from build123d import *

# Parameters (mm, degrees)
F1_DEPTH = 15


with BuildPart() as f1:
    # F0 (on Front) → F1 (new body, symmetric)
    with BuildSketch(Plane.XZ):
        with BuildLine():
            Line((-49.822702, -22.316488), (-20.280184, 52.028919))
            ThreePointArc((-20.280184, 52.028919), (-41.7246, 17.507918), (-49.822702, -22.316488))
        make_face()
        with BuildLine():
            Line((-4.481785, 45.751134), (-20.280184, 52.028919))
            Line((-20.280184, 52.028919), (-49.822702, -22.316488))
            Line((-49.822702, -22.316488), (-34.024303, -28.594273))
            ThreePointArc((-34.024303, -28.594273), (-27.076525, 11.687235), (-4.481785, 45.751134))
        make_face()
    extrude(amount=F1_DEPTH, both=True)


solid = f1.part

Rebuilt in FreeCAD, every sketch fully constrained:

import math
import FreeCAD as App
import Part
import Sketcher

doc = App.newDocument("Part")
body = doc.addObject("PartDesign::Body", "Body")

# Sketch on XZ plane
sketch1 = doc.addObject("Sketcher::SketchObject", "Sketch")
body.addObject(sketch1)
sketch1.AttachmentSupport = (doc.XZ_Plane, [""])
sketch1.MapMode = "FlatFace"
sketch1.addGeometry([
    Part.ArcOfCircle(Part.Circle(App.Vector(65, -25, 0), App.Vector(0, 0, 1), 115), math.radians(138), math.radians(179)),
    Part.LineSegment(App.Vector(-50, -22, 0), App.Vector(-34, -29, 0)),
    Part.ArcOfCircle(Part.Circle(App.Vector(65, -25, 0), App.Vector(0, 0, 1), 99), math.radians(135), math.radians(182)),
    Part.LineSegment(App.Vector(-4, 46, 0), App.Vector(-20, 52, 0)),
], False)
sketch1.addConstraint([
    Sketcher.Constraint("Coincident", 0, 2, 1, 1),
    Sketcher.Constraint("Coincident", 1, 2, 2, 2),
    Sketcher.Constraint("Coincident", 2, 1, 3, 1),
    Sketcher.Constraint("Coincident", 3, 2, 0, 1),
    Sketcher.Constraint("Coincident", 2, 3, 0, 3),
    Sketcher.Constraint("Parallel", 1, 3),
    Sketcher.Constraint("Equal", 1, 3),
    Sketcher.Constraint("Distance", 1, 17.0),
    Sketcher.Constraint("Radius", 0, 114.999997),
    Sketcher.Constraint("Radius", 2, 99.237812),
    Sketcher.Constraint("DistanceX", 0, 2, 1, 2, 15.798399),
    Sketcher.Constraint("DistanceX", -1, 1, 0, 3, 65.14692),
    Sketcher.Constraint("DistanceY", 0, 3, -1, 1, 24.959451),
])
pad1 = doc.addObject("PartDesign::Pad", "Pad")
body.addObject(pad1)
pad1.Profile = sketch1
pad1.Length = 30
pad1.Midplane = True

doc.recompute()
